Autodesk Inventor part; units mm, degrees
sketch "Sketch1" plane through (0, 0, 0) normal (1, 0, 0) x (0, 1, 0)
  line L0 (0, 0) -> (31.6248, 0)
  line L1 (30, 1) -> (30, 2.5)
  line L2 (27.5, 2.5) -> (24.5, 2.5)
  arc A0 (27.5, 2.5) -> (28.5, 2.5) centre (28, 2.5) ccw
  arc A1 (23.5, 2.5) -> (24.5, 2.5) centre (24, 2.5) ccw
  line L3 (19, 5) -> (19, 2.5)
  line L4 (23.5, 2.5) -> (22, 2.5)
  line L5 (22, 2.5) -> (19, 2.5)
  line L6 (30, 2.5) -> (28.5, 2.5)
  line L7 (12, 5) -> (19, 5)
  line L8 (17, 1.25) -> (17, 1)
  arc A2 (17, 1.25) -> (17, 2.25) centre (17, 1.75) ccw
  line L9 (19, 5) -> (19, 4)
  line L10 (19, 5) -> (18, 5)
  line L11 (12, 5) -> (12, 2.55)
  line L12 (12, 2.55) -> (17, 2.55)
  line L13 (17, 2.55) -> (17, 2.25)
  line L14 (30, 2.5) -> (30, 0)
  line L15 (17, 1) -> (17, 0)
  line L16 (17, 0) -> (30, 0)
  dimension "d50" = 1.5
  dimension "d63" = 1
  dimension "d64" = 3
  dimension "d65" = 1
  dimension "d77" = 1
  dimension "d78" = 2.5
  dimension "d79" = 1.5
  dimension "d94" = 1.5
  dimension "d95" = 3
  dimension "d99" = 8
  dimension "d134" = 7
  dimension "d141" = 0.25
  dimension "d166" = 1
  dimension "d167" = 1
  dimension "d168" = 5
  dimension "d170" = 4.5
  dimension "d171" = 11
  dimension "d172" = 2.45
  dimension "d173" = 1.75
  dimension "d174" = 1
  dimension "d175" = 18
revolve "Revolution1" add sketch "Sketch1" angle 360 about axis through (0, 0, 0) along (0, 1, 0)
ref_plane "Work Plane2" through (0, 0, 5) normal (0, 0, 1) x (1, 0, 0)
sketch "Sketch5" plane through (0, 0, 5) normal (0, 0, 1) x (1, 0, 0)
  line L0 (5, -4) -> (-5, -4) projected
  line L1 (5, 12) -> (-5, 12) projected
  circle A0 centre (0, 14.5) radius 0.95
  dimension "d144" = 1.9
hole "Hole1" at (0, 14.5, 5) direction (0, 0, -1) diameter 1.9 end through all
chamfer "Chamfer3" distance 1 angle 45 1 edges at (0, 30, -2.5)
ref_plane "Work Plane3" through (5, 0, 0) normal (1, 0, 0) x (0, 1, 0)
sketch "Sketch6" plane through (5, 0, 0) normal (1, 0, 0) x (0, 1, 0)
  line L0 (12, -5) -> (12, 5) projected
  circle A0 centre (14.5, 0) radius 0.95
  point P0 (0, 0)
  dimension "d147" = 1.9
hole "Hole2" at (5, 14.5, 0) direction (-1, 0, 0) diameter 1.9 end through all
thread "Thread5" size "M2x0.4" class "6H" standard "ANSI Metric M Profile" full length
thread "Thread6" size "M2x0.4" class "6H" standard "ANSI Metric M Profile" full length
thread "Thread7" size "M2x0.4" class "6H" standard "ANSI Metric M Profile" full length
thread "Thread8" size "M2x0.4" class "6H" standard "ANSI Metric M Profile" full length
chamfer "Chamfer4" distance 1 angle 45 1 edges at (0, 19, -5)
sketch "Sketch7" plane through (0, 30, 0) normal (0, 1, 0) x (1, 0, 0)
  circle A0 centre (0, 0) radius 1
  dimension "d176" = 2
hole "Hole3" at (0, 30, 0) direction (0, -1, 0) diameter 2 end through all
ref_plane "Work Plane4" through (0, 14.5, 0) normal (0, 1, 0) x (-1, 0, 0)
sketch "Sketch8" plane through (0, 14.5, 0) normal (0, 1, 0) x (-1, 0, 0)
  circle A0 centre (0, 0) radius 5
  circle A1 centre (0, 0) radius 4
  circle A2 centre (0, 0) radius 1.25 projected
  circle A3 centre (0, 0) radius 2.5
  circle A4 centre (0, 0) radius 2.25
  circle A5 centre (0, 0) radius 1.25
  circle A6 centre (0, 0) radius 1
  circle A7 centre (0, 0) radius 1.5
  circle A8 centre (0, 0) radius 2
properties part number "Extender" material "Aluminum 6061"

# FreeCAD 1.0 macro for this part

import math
import FreeCAD as App
import Part
import Sketcher

V = App.Vector
Q = App.Units.Quantity


def edges_at(feature, points):
    """Names of the edges that pass closest to the given points."""
    edges = feature.Shape.Edges
    near = lambda p: min(range(len(edges)), key=lambda i: edges[i].distToShape(Part.Vertex(*p))[0])
    return sorted({f"Edge{near(p) + 1}" for p in points})

doc = App.newDocument("Part")
params = doc.addObject("Spreadsheet::Sheet", "Params")
for row, (alias, value) in enumerate([
    ("sketch1_radius", "0.5 mm"),
    ("sketch1_width", "3 mm"),
    ("sketch1_width2", "7 mm"),
    ("sketch1_width3", "5 mm"),
    ("sketch1_width4", "1.5 mm"),
    ("revolution_angle", "360 deg"),
    ("sketch2_diameter", "1.9 mm"),
    ("hole_diameter", "1.9 mm"),
    ("chamfer_size", "1 mm"),
    ("sketch3_diameter", "1.9 mm"),
    ("hole2_diameter", "1.9 mm"),
    ("chamfer2_size", "1 mm"),
    ("sketch4_diameter", "2 mm"),
    ("hole3_diameter", "2 mm"),
], start=1):
    params.set(f"A{row}", alias)
    params.set(f"B{row}", "=" + value)
    params.setAlias(f"B{row}", alias)

body = doc.addObject("PartDesign::Body", "Body")

# Sketch on YZ plane
sketch1 = doc.addObject("Sketcher::SketchObject", "Sketch")
body.addObject(sketch1)
sketch1.AttachmentSupport = (doc.YZ_Plane, [""])
sketch1.MapMode = "FlatFace"
sketch1.addGeometry(Part.LineSegment(V(17, 1.25, 0), V(17, 0, 0)), False)
sketch1.addGeometry(Part.LineSegment(V(17, 0, 0), V(30, 0, 0)), False)
sketch1.addGeometry(Part.LineSegment(V(30, 0, 0), V(30, 2.5, 0)), False)
sketch1.addGeometry(Part.LineSegment(V(30, 2.5, 0), V(28.5, 2.5, 0)), False)
sketch1.addGeometry(Part.ArcOfCircle(Part.Circle(V(28, 2.5, 0), V(0, 0, 1), 0.5), math.radians(180), math.radians(360)), False)
sketch1.addGeometry(Part.LineSegment(V(27.5, 2.5, 0), V(24.5, 2.5, 0)), False)
sketch1.addGeometry(Part.ArcOfCircle(Part.Circle(V(24, 2.5, 0), V(0, 0, 1), 0.5), math.radians(180), math.radians(360)), False)
sketch1.addGeometry(Part.LineSegment(V(23.5, 2.5, 0), V(19, 2.5, 0)), False)
sketch1.addGeometry(Part.LineSegment(V(19, 2.5, 0), V(19, 5, 0)), False)
sketch1.addGeometry(Part.LineSegment(V(19, 5, 0), V(12, 5, 0)), False)
sketch1.addGeometry(Part.LineSegment(V(12, 5, 0), V(12, 2.55, 0)), False)
sketch1.addGeometry(Part.LineSegment(V(12, 2.55, 0), V(17, 2.55, 0)), False)
sketch1.addGeometry(Part.LineSegment(V(17, 2.55, 0), V(17, 2.25, 0)), False)
sketch1.addGeometry(Part.ArcOfCircle(Part.Circle(V(17, 1.75, 0), V(0, 0, 1), 0.5), math.radians(-90), math.radians(90)), False)
sketch1.addConstraint(Sketcher.Constraint("Coincident", 0, 2, 1, 1))
sketch1.addConstraint(Sketcher.Constraint("Coincident", 1, 2, 2, 1))
sketch1.addConstraint(Sketcher.Constraint("Coincident", 2, 2, 3, 1))
sketch1.addConstraint(Sketcher.Constraint("Coincident", 3, 2, 4, 2))
sketch1.addConstraint(Sketcher.Constraint("Coincident", 4, 1, 5, 1))
sketch1.addConstraint(Sketcher.Constraint("Coincident", 5, 2, 6, 2))
sketch1.addConstraint(Sketcher.Constraint("Coincident", 6, 1, 7, 1))
sketch1.addConstraint(Sketcher.Constraint("Coincident", 7, 2, 8, 1))
sketch1.addConstraint(Sketcher.Constraint("Coincident", 8, 2, 9, 1))
sketch1.addConstraint(Sketcher.Constraint("Coincident", 9, 2, 10, 1))
sketch1.addConstraint(Sketcher.Constraint("Coincident", 10, 2, 11, 1))
sketch1.addConstraint(Sketcher.Constraint("Coincident", 11, 2, 12, 1))
sketch1.addConstraint(Sketcher.Constraint("Coincident", 12, 2, 13, 2))
sketch1.addConstraint(Sketcher.Constraint("Coincident", 13, 1, 0, 1))
sketch1.addConstraint(Sketcher.Constraint("Vertical", 0))
sketch1.addConstraint(Sketcher.Constraint("Horizontal", 1))
sketch1.addConstraint(Sketcher.Constraint("Vertical", 2))
sketch1.addConstraint(Sketcher.Constraint("Horizontal", 3))
sketch1.addConstraint(Sketcher.Constraint("Horizontal", 5))
sketch1.addConstraint(Sketcher.Constraint("Horizontal", 7))
sketch1.addConstraint(Sketcher.Constraint("Vertical", 8))
sketch1.addConstraint(Sketcher.Constraint("Horizontal", 9))
sketch1.addConstraint(Sketcher.Constraint("Vertical", 10))
sketch1.addConstraint(Sketcher.Constraint("Horizontal", 11))
sketch1.addConstraint(Sketcher.Constraint("Vertical", 12))
sketch1.addConstraint(Sketcher.Constraint("Equal", 4, 6))
sketch1.addConstraint(Sketcher.Constraint("Equal", 6, 13))
sketch1.addConstraint(Sketcher.Constraint("PointOnObject", 0, 2, -1))
sketch1.addConstraint(Sketcher.Constraint("Horizontal", 4, 3, 6, 3))
sketch1.addConstraint(Sketcher.Constraint("Horizontal", 6, 3, 2, 2))
sketch1.addConstraint(Sketcher.Constraint("Horizontal", 3, 2, 4, 1))
sketch1.addConstraint(Sketcher.Constraint("Horizontal", 5, 2, 6, 1))
sketch1.addConstraint(Sketcher.Constraint("Vertical", 13, 3, 0, 2))
sketch1.addConstraint(Sketcher.Constraint("Vertical", 0, 2, 11, 2))
sketch1.addConstraint(Sketcher.Constraint("Equal", 2, 8))
sketch1.addConstraint(Sketcher.Constraint("Radius", 4, Q("0.5 mm")))
sketch1.addConstraint(Sketcher.Constraint("DistanceX", 5, 2, 5, 1, Q("3 mm")))
sketch1.addConstraint(Sketcher.Constraint("DistanceX", 9, 2, 9, 1, Q("7 mm")))
sketch1.addConstraint(Sketcher.Constraint("DistanceX", 11, 1, 11, 2, Q("5 mm")))
sketch1.addConstraint(Sketcher.Constraint("DistanceX", 3, 2, 3, 1, Q("1.5 mm")))
sketch1.addConstraint(Sketcher.Constraint("DistanceX", 7, 2, 7, 1, Q("4.5 mm")))
sketch1.addConstraint(Sketcher.Constraint("DistanceY", 2, 1, 2, 2, Q("2.5 mm")))
sketch1.addConstraint(Sketcher.Constraint("DistanceY", 10, 2, 10, 1, Q("2.45 mm")))
sketch1.addConstraint(Sketcher.Constraint("DistanceY", -1, 1, 13, 3, Q("1.75 mm")))
sketch1.addConstraint(Sketcher.Constraint("DistanceX", -1, 1, 4, 3, Q("28 mm")))
sketch1.setExpression("Constraints[35]", "Params.sketch1_radius")
sketch1.setExpression("Constraints[36]", "Params.sketch1_width")
sketch1.setExpression("Constraints[37]", "Params.sketch1_width2")
sketch1.setExpression("Constraints[38]", "Params.sketch1_width3")
sketch1.setExpression("Constraints[39]", "Params.sketch1_width4")
revolution = doc.addObject("PartDesign::Revolution", "Revolution")
body.addObject(revolution)
revolution.Profile = sketch1
revolution.ReferenceAxis = (sketch1, ["H_Axis"])
revolution.setExpression("Angle", "Params.revolution_angle")

# Sketch on XY plane
sketch2 = doc.addObject("Sketcher::SketchObject", "Sketch001")
body.addObject(sketch2)
sketch2.AttachmentSupport = (doc.XY_Plane, [""])
sketch2.MapMode = "FlatFace"
sketch2.AttachmentOffset = App.Placement(V(0, 0, 5), App.Rotation())
sketch2.addGeometry(Part.Circle(V(0, 14.5, 0), V(0, 0, 1), 0.9), False)
sketch2.addConstraint(Sketcher.Constraint("PointOnObject", 0, 3, -2))
sketch2.addConstraint(Sketcher.Constraint("Diameter", 0, Q("1.9 mm")))
sketch2.addConstraint(Sketcher.Constraint("DistanceY", -1, 1, 0, 3, Q("14.5 mm")))
sketch2.setExpression("Constraints[1]", "Params.sketch2_diameter")
doc.recompute()
hole = doc.addObject("PartDesign::Hole", "Hole")
body.addObject(hole)
hole.Profile = sketch2
hole.ThreadType = "None"
hole.setExpression("Diameter", "Params.hole_diameter")
hole.DepthType = "ThroughAll"
doc.recompute()

chamfer = doc.addObject("PartDesign::Chamfer", "Chamfer")
body.addObject(chamfer)
chamfer.Base = (hole, edges_at(hole, [(0, 30, -2.5)]))
chamfer.setExpression("Size", "Params.chamfer_size")

# Sketch on YZ plane
sketch3 = doc.addObject("Sketcher::SketchObject", "Sketch002")
body.addObject(sketch3)
sketch3.AttachmentSupport = (doc.YZ_Plane, [""])
sketch3.MapMode = "FlatFace"
sketch3.AttachmentOffset = App.Placement(V(0, 0, 5), App.Rotation())
sketch3.addGeometry(Part.Circle(V(14.5, 0, 0), V(0, 0, 1), 0.9), False)
sketch3.addConstraint(Sketcher.Constraint("PointOnObject", 0, 3, -1))
sketch3.addConstraint(Sketcher.Constraint("Diameter", 0, Q("1.9 mm")))
sketch3.addConstraint(Sketcher.Constraint("DistanceX", -1, 1, 0, 3, Q("14.5 mm")))
sketch3.setExpression("Constraints[1]", "Params.sketch3_diameter")
doc.recompute()
hole2 = doc.addObject("PartDesign::Hole", "Hole001")
body.addObject(hole2)
hole2.Profile = sketch3
hole2.ThreadType = "None"
hole2.setExpression("Diameter", "Params.hole2_diameter")
hole2.DepthType = "ThroughAll"
doc.recompute()

chamfer2 = doc.addObject("PartDesign::Chamfer", "Chamfer001")
body.addObject(chamfer2)
chamfer2.Base = (hole2, edges_at(hole2, [(0, 19, -5)]))
chamfer2.setExpression("Size", "Params.chamfer2_size")

# Sketch on XZ plane
sketch4 = doc.addObject("Sketcher::SketchObject", "Sketch003")
body.addObject(sketch4)
sketch4.AttachmentSupport = (doc.XZ_Plane, [""])
sketch4.MapMode = "FlatFace"
sketch4.AttachmentOffset = App.Placement(V(0, 0, -30), App.Rotation())
sketch4.addGeometry(Part.Circle(V(0, 0, 0), V(0, 0, 1), 1), False)
sketch4.addConstraint(Sketcher.Constraint("Coincident", 0, 3, -1, 1))
sketch4.addConstraint(Sketcher.Constraint("Diameter", 0, Q("2 mm")))
sketch4.setExpression("Constraints[1]", "Params.sketch4_diameter")
doc.recompute()
hole3 = doc.addObject("PartDesign::Hole", "Hole002")
body.addObject(hole3)
hole3.Profile = sketch4
hole3.ThreadType = "None"
hole3.setExpression("Diameter", "Params.hole3_diameter")
hole3.DepthType = "ThroughAll"
hole3.Reversed = True

doc.recompute()
